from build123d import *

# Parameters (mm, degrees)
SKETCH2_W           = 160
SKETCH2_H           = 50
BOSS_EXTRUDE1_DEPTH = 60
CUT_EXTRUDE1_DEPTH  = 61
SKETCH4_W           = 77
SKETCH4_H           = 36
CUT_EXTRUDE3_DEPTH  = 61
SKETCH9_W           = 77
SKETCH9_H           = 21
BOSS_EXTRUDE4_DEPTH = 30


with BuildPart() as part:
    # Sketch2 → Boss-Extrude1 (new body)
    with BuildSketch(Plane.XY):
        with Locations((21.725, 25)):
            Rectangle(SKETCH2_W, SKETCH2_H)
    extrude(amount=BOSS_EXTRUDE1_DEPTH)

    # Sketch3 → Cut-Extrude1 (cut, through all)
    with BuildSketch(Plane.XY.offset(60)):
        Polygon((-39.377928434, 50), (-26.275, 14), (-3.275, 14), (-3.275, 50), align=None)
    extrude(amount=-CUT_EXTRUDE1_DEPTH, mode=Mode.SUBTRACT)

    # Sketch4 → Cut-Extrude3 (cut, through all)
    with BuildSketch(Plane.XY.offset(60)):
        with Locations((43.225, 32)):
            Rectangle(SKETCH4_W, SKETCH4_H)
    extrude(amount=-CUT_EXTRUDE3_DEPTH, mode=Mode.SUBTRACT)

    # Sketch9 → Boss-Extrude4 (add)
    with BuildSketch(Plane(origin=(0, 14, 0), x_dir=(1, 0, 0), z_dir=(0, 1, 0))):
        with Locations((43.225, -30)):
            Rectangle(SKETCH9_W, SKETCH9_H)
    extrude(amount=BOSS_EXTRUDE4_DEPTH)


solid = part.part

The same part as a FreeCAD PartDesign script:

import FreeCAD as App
import Part
import Sketcher
Q = App.Units.Quantity


def add_polygon(sketch, points):
    """Adds a closed chain of lines whose ends are joined by coincident constraints."""
    first, n = sketch.GeometryCount, len(points)
    for a, b in zip(points, points[1:] + points[:1]):
        sketch.addGeometry(Part.LineSegment(App.Vector(*a, 0), App.Vector(*b, 0)), False)
    for i in range(n):
        sketch.addConstraint(Sketcher.Constraint("Coincident", first + i, 2, first + (i + 1) % n, 1))

doc = App.newDocument("Part")
body = doc.addObject("PartDesign::Body", "Body")

sketch1 = body.newObject("Sketcher::SketchObject", "Sketch")
sketch1.AttachmentSupport = (doc.getObject("XY_Plane"), [""])
sketch1.MapMode = "FlatFace"
add_polygon(sketch1, [(-58, 50), (-58, 0), (102, 0), (102, 50)])
sketch1.addConstraint(Sketcher.Constraint("Vertical", 0))
sketch1.addConstraint(Sketcher.Constraint("Horizontal", 1))
sketch1.addConstraint(Sketcher.Constraint("Vertical", 2))
sketch1.addConstraint(Sketcher.Constraint("Horizontal", 3))
sketch1.addConstraint(Sketcher.Constraint("PointOnObject", 0, 2, -1))
sketch1.addConstraint(Sketcher.Constraint("DistanceX", 1, 1, 1, 2, 160.0))
sketch1.addConstraint(Sketcher.Constraint("DistanceY", 0, 2, 0, 1, 50.0))
sketch1.addConstraint(Sketcher.Constraint("DistanceX", 0, 2, -1, 1, 58.275))
pad1 = body.newObject("PartDesign::Pad", "Pad")
pad1.Profile = sketch1
pad1.Length = 60

sketch2 = body.newObject("Sketcher::SketchObject", "Sketch001")
sketch2.AttachmentSupport = (doc.getObject("XY_Plane"), [""])
sketch2.MapMode = "FlatFace"
sketch2.AttachmentOffset = App.Placement(App.Vector(0, 0, 60), App.Rotation())
add_polygon(sketch2, [(-39, 50), (-26, 14), (-3, 14), (-3, 50)])
sketch2.addConstraint(Sketcher.Constraint("Horizontal", 1))
sketch2.addConstraint(Sketcher.Constraint("Vertical", 2))
sketch2.addConstraint(Sketcher.Constraint("Horizontal", 3))
sketch2.addConstraint(Sketcher.Constraint("DistanceX", 1, 1, 1, 2, 23.0))
sketch2.addConstraint(Sketcher.Constraint("DistanceY", 2, 1, 2, 2, 36.0))
sketch2.addConstraint(Sketcher.Constraint("Angle", 0, Q("-70 deg")))
sketch2.addConstraint(Sketcher.Constraint("DistanceY", -1, 1, 0, 2, 14.0))
sketch2.addConstraint(Sketcher.Constraint("DistanceX", 0, 2, -1, 1, 26.275))
pocket1 = body.newObject("PartDesign::Pocket", "Pocket")
pocket1.Profile = sketch2
pocket1.Type = "ThroughAll"

sketch3 = body.newObject("Sketcher::SketchObject", "Sketch002")
sketch3.AttachmentSupport = (doc.getObject("XY_Plane"), [""])
sketch3.MapMode = "FlatFace"
sketch3.AttachmentOffset = App.Placement(App.Vector(0, 0, 60), App.Rotation())
add_polygon(sketch3, [(5, 50), (5, 14), (82, 14), (82, 50)])
sketch3.addConstraint(Sketcher.Constraint("Vertical", 0))
sketch3.addConstraint(Sketcher.Constraint("Horizontal", 1))
sketch3.addConstraint(Sketcher.Constraint("Vertical", 2))
sketch3.addConstraint(Sketcher.Constraint("Horizontal", 3))
sketch3.addConstraint(Sketcher.Constraint("DistanceX", 1, 1, 1, 2, 77.0))
sketch3.addConstraint(Sketcher.Constraint("DistanceY", 0, 2, 0, 1, 36.0))
sketch3.addConstraint(Sketcher.Constraint("DistanceY", -1, 1, 0, 2, 14.0))
sketch3.addConstraint(Sketcher.Constraint("DistanceX", -1, 1, 0, 2, 4.725))
pocket2 = body.newObject("PartDesign::Pocket", "Pocket001")
pocket2.Profile = sketch3
pocket2.Type = "ThroughAll"

sketch4 = body.newObject("Sketcher::SketchObject", "Sketch003")
sketch4.AttachmentSupport = (doc.getObject("XZ_Plane"), [""])
sketch4.MapMode = "FlatFace"
sketch4.AttachmentOffset = App.Placement(App.Vector(0, 0, -14), App.Rotation())
add_polygon(sketch4, [(5, 20), (5, 40), (82, 40), (82, 20)])
sketch4.addConstraint(Sketcher.Constraint("Vertical", 0))
sketch4.addConstraint(Sketcher.Constraint("Horizontal", 1))
sketch4.addConstraint(Sketcher.Constraint("Vertical", 2))
sketch4.addConstraint(Sketcher.Constraint("Horizontal", 3))
sketch4.addConstraint(Sketcher.Constraint("DistanceX", 1, 1, 1, 2, 77.0))
sketch4.addConstraint(Sketcher.Constraint("DistanceY", 0, 1, 0, 2, 21.0))
sketch4.addConstraint(Sketcher.Constraint("DistanceY", -1, 1, 0, 2, 40.5))
sketch4.addConstraint(Sketcher.Constraint("DistanceX", -1, 1, 0, 2, 4.725))
pad2 = body.newObject("PartDesign::Pad", "Pad001")
pad2.Profile = sketch4
pad2.Length = 30
pad2.Reversed = True

doc.recompute()
